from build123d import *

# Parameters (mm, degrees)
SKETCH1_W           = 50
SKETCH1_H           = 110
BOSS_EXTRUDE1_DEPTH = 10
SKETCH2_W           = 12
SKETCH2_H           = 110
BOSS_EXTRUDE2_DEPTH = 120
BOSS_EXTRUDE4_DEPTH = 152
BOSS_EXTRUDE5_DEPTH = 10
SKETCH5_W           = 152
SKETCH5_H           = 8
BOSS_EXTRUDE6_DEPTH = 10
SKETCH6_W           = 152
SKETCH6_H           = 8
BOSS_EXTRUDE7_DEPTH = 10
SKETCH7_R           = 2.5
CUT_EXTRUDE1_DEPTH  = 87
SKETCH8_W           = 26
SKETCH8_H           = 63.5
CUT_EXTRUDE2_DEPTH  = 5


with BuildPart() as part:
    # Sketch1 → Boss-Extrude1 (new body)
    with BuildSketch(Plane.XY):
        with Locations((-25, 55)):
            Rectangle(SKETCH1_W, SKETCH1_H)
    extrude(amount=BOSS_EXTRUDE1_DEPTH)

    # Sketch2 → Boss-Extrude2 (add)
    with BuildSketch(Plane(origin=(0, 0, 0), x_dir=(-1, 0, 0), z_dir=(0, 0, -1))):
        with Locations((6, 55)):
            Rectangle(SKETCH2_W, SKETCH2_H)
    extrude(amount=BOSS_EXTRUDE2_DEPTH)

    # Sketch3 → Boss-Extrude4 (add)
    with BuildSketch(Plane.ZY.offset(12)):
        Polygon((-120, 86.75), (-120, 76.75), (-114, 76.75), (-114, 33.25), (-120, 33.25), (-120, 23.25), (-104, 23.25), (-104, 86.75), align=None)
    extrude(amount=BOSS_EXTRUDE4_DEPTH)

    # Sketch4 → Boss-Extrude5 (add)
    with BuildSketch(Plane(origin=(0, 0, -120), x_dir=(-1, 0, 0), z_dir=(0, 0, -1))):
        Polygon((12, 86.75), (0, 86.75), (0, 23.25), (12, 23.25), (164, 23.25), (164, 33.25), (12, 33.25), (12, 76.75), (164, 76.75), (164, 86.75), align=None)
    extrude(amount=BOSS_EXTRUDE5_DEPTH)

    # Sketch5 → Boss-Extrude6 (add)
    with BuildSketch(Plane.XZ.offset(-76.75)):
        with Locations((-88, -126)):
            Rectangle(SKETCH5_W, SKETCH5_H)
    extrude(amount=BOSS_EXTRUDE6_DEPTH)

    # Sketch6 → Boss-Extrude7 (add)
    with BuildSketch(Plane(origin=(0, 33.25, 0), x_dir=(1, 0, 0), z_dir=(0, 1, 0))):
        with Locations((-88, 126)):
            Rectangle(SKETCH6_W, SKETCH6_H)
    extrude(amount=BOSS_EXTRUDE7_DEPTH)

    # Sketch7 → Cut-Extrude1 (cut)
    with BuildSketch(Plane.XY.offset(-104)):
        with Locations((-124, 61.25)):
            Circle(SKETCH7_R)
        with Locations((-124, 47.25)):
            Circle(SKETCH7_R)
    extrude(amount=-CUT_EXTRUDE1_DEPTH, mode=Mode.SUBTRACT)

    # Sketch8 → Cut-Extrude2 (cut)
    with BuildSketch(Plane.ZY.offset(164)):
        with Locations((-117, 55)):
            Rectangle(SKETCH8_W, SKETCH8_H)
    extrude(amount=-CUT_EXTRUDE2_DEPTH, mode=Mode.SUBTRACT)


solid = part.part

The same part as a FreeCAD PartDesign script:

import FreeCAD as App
import Part
import Sketcher

V = App.Vector


def add_polygon(sketch, points):
    """Adds a closed chain of lines whose ends are joined by coincident constraints."""
    first, n = sketch.GeometryCount, len(points)
    for a, b in zip(points, points[1:] + points[:1]):
        sketch.addGeometry(Part.LineSegment(App.Vector(*a, 0), App.Vector(*b, 0)), False)
    for i in range(n):
        sketch.addConstraint(Sketcher.Constraint("Coincident", first + i, 2, first + (i + 1) % n, 1))

doc = App.newDocument("Part")
body = doc.addObject("PartDesign::Body", "Body")

# Sketch on XY plane
sketch1 = body.newObject("Sketcher::SketchObject", "Sketch")
sketch1.AttachmentSupport = (doc.getObject("XY_Plane"), [""])
sketch1.MapMode = "FlatFace"
add_polygon(sketch1, [(-50, 110), (-50, 0), (0, 0), (0, 110)])  # lines 0-3
sketch1.addConstraint([
    Sketcher.Constraint("Vertical", 0),
    Sketcher.Constraint("Horizontal", 1),
    Sketcher.Constraint("Vertical", 2),
    Sketcher.Constraint("Horizontal", 3),
    Sketcher.Constraint("Coincident", 1, 2, -1, 1),
    Sketcher.Constraint("DistanceX", 1, 1, 1, 2, 50.0),
    Sketcher.Constraint("DistanceY", 0, 2, 0, 1, 110.0),
])
pad1 = body.newObject("PartDesign::Pad", "Pad")
pad1.Profile = sketch1
pad1.Length = 10

# Sketch on XY plane
sketch2 = body.newObject("Sketcher::SketchObject", "Sketch001")
sketch2.AttachmentSupport = (doc.getObject("XY_Plane"), [""])
sketch2.MapMode = "FlatFace"
add_polygon(sketch2, [(0, 110), (0, 0), (-12, 0), (-12, 110)])  # lines 0-3
sketch2.addConstraint([
    Sketcher.Constraint("Vertical", 0),
    Sketcher.Constraint("Horizontal", 1),
    Sketcher.Constraint("Vertical", 2),
    Sketcher.Constraint("Horizontal", 3),
    Sketcher.Constraint("Coincident", 0, 2, -1, 1),
    Sketcher.Constraint("DistanceX", 1, 2, 1, 1, 12.0),
    Sketcher.Constraint("DistanceY", 0, 2, 0, 1, 110.0),
])
pad2 = body.newObject("PartDesign::Pad", "Pad001")
pad2.Profile = sketch2
pad2.Length = 120
pad2.Reversed = True

# Sketch on YZ plane
sketch3 = body.newObject("Sketcher::SketchObject", "Sketch002")
sketch3.AttachmentSupport = (doc.getObject("YZ_Plane"), [""])
sketch3.MapMode = "FlatFace"
sketch3.AttachmentOffset = App.Placement(V(0, 0, -12), App.Rotation())
add_polygon(sketch3, [(86.75, -120), (76.75, -120), (76.75, -114), (33.25, -114), (33.25, -120), (23.25, -120), (23.25, -104), (86.75, -104)])  # lines 0-7
sketch3.addConstraint([
    Sketcher.Constraint("Horizontal", 0),
    Sketcher.Constraint("Vertical", 1),
    Sketcher.Constraint("Horizontal", 2),
    Sketcher.Constraint("Vertical", 3),
    Sketcher.Constraint("Horizontal", 4),
    Sketcher.Constraint("Vertical", 5),
    Sketcher.Constraint("Horizontal", 6),
    Sketcher.Constraint("Vertical", 7),
    Sketcher.Constraint("Horizontal", 0, 2, 3, 2),
    Sketcher.Constraint("Equal", 0, 4),
    Sketcher.Constraint("DistanceX", 0, 2, 0, 1, 10.0),
    Sketcher.Constraint("DistanceY", 1, 1, 1, 2, 6.0),
    Sketcher.Constraint("DistanceY", 5, 1, 5, 2, 16.0),
    Sketcher.Constraint("DistanceX", 2, 2, 2, 1, 43.5),
    Sketcher.Constraint("DistanceY", 0, 2, -1, 1, 120.0),
    Sketcher.Constraint("DistanceX", -1, 1, 0, 2, 76.75),
])
pad3 = body.newObject("PartDesign::Pad", "Pad002")
pad3.Profile = sketch3
pad3.Length = 152
pad3.Reversed = True

# Sketch on XY plane
sketch4 = body.newObject("Sketcher::SketchObject", "Sketch003")
sketch4.AttachmentSupport = (doc.getObject("XY_Plane"), [""])
sketch4.MapMode = "FlatFace"
sketch4.AttachmentOffset = App.Placement(V(0, 0, -120), App.Rotation())
add_polygon(sketch4, [(0, 86.75), (0, 23.25), (-164, 23.25), (-164, 33.25), (-12, 33.25), (-12, 76.75), (-164, 76.75), (-164, 86.75)])  # lines 0-7
sketch4.addConstraint([
    Sketcher.Constraint("Vertical", 0),
    Sketcher.Constraint("Horizontal", 1),
    Sketcher.Constraint("Vertical", 2),
    Sketcher.Constraint("Horizontal", 3),
    Sketcher.Constraint("Vertical", 4),
    Sketcher.Constraint("Horizontal", 5),
    Sketcher.Constraint("Vertical", 6),
    Sketcher.Constraint("Horizontal", 7),
    Sketcher.Constraint("PointOnObject", 0, 2, -2),
    Sketcher.Constraint("Vertical", 2, 2, 5, 2),
    Sketcher.Constraint("Equal", 2, 6),
    Sketcher.Constraint("DistanceX", 1, 2, 1, 1, 164.0),
    Sketcher.Constraint("DistanceX", 3, 1, 3, 2, 152.0),
    Sketcher.Constraint("DistanceY", 2, 1, 2, 2, 10.0),
    Sketcher.Constraint("DistanceY", 0, 2, 0, 1, 63.5),
    Sketcher.Constraint("DistanceY", -1, 1, 0, 2, 23.25),
])
pad4 = body.newObject("PartDesign::Pad", "Pad003")
pad4.Profile = sketch4
pad4.Length = 10
pad4.Reversed = True

# Sketch on XZ plane
sketch5 = body.newObject("Sketcher::SketchObject", "Sketch004")
sketch5.AttachmentSupport = (doc.getObject("XZ_Plane"), [""])
sketch5.MapMode = "FlatFace"
sketch5.AttachmentOffset = App.Placement(V(0, 0, -76.75), App.Rotation())
add_polygon(sketch5, [(-164, -122), (-164, -130), (-12, -130), (-12, -122)])  # lines 0-3
sketch5.addConstraint([
    Sketcher.Constraint("Vertical", 0),
    Sketcher.Constraint("Horizontal", 1),
    Sketcher.Constraint("Vertical", 2),
    Sketcher.Constraint("Horizontal", 3),
    Sketcher.Constraint("DistanceX", 1, 1, 1, 2, 152.0),
    Sketcher.Constraint("DistanceY", 0, 2, 0, 1, 8.0),
    Sketcher.Constraint("DistanceX", 0, 2, -1, 1, 164.0),
    Sketcher.Constraint("DistanceY", 0, 2, -1, 1, 130.0),
])
pad5 = body.newObject("PartDesign::Pad", "Pad004")
pad5.Profile = sketch5
pad5.Length = 10

# Sketch on XZ plane
sketch6 = body.newObject("Sketcher::SketchObject", "Sketch005")
sketch6.AttachmentSupport = (doc.getObject("XZ_Plane"), [""])
sketch6.MapMode = "FlatFace"
sketch6.AttachmentOffset = App.Placement(V(0, 0, -33.25), App.Rotation())
add_polygon(sketch6, [(-164, -130), (-164, -122), (-12, -122), (-12, -130)])  # lines 0-3
sketch6.addConstraint([
    Sketcher.Constraint("Vertical", 0),
    Sketcher.Constraint("Horizontal", 1),
    Sketcher.Constraint("Vertical", 2),
    Sketcher.Constraint("Horizontal", 3),
    Sketcher.Constraint("DistanceX", 1, 1, 1, 2, 152.0),
    Sketcher.Constraint("DistanceY", 0, 1, 0, 2, 8.0),
    Sketcher.Constraint("DistanceX", 0, 2, -1, 1, 164.0),
    Sketcher.Constraint("DistanceY", 0, 2, -1, 1, 122.0),
])
pad6 = body.newObject("PartDesign::Pad", "Pad005")
pad6.Profile = sketch6
pad6.Length = 10
pad6.Reversed = True

# Sketch on XY plane
sketch7 = body.newObject("Sketcher::SketchObject", "Sketch006")
sketch7.AttachmentSupport = (doc.getObject("XY_Plane"), [""])
sketch7.MapMode = "FlatFace"
sketch7.AttachmentOffset = App.Placement(V(0, 0, -104), App.Rotation())
sketch7.addGeometry([
    Part.Circle(V(-124, 61.25, 0), V(0, 0, 1), 2.5),
    Part.Circle(V(-124, 47.25, 0), V(0, 0, 1), 2.5),
], False)
sketch7.addConstraint([
    Sketcher.Constraint("Equal", 0, 1),
    Sketcher.Constraint("Vertical", 0, 3, 1, 3),
    Sketcher.Constraint("Diameter", 0, 5.0),
    Sketcher.Constraint("DistanceX", 0, 3, -1, 1, 124.0),
    Sketcher.Constraint("DistanceY", 1, 3, 0, 3, 14.0),
    Sketcher.Constraint("DistanceY", -1, 1, 0, 3, 61.25),
])
pocket1 = body.newObject("PartDesign::Pocket", "Pocket")
pocket1.Profile = sketch7
pocket1.Length = 87

# Sketch on YZ plane
sketch8 = body.newObject("Sketcher::SketchObject", "Sketch007")
sketch8.AttachmentSupport = (doc.getObject("YZ_Plane"), [""])
sketch8.MapMode = "FlatFace"
sketch8.AttachmentOffset = App.Placement(V(0, 0, -164), App.Rotation())
add_polygon(sketch8, [(86.75, -130), (23.25, -130), (23.25, -104), (86.75, -104)])  # lines 0-3
sketch8.addConstraint([
    Sketcher.Constraint("Horizontal", 0),
    Sketcher.Constraint("Vertical", 1),
    Sketcher.Constraint("Horizontal", 2),
    Sketcher.Constraint("Vertical", 3),
    Sketcher.Constraint("DistanceY", 1, 1, 1, 2, 26.0),
    Sketcher.Constraint("DistanceX", 0, 2, 0, 1, 63.5),
    Sketcher.Constraint("DistanceY", 0, 2, -1, 1, 130.0),
    Sketcher.Constraint("DistanceX", -1, 1, 0, 2, 23.25),
])
pocket2 = body.newObject("PartDesign::Pocket", "Pocket001")
pocket2.Profile = sketch8
pocket2.Length = 5
pocket2.Reversed = True

doc.recompute()
